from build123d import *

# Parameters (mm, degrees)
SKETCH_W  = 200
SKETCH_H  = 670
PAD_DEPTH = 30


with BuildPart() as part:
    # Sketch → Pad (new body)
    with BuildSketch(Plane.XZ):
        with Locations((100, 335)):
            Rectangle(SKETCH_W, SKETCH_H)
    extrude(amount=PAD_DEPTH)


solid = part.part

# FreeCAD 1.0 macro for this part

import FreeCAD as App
import Part
import Sketcher

V = App.Vector

doc = App.newDocument("Part")
body = doc.addObject("PartDesign::Body", "Body")

# Sketch on XZ plane
sketch1 = body.newObject("Sketcher::SketchObject", "Sketch")
sketch1.AttachmentSupport = (doc.getObject("XZ_Plane"), [""])
sketch1.MapMode = "FlatFace"
sketch1.addGeometry([
    Part.LineSegment(V(0, 670, 0), V(0, 0, 0)),
    Part.LineSegment(V(0, 0, 0), V(200, 0, 0)),
    Part.LineSegment(V(200, 0, 0), V(200, 670, 0)),
    Part.LineSegment(V(200, 670, 0), V(0, 670, 0)),
], False)
sketch1.addConstraint([
    Sketcher.Constraint("Coincident", 0, 2, 1, 1),
    Sketcher.Constraint("Coincident", 1, 2, 2, 1),
    Sketcher.Constraint("Coincident", 2, 2, 3, 1),
    Sketcher.Constraint("Coincident", 3, 2, 0, 1),
    Sketcher.Constraint("Vertical", 0),
    Sketcher.Constraint("Horizontal", 1),
    Sketcher.Constraint("Vertical", 2),
    Sketcher.Constraint("Horizontal", 3),
    Sketcher.Constraint("Coincident", 0, 2, -1, 1),
    Sketcher.Constraint("DistanceX", 1, 1, 1, 2, 200.0),
    Sketcher.Constraint("DistanceY", 0, 2, 0, 1, 670.0),
])
pad1 = body.newObject("PartDesign::Pad", "Pad")
pad1.Profile = sketch1
pad1.Length = 30

doc.recompute()
